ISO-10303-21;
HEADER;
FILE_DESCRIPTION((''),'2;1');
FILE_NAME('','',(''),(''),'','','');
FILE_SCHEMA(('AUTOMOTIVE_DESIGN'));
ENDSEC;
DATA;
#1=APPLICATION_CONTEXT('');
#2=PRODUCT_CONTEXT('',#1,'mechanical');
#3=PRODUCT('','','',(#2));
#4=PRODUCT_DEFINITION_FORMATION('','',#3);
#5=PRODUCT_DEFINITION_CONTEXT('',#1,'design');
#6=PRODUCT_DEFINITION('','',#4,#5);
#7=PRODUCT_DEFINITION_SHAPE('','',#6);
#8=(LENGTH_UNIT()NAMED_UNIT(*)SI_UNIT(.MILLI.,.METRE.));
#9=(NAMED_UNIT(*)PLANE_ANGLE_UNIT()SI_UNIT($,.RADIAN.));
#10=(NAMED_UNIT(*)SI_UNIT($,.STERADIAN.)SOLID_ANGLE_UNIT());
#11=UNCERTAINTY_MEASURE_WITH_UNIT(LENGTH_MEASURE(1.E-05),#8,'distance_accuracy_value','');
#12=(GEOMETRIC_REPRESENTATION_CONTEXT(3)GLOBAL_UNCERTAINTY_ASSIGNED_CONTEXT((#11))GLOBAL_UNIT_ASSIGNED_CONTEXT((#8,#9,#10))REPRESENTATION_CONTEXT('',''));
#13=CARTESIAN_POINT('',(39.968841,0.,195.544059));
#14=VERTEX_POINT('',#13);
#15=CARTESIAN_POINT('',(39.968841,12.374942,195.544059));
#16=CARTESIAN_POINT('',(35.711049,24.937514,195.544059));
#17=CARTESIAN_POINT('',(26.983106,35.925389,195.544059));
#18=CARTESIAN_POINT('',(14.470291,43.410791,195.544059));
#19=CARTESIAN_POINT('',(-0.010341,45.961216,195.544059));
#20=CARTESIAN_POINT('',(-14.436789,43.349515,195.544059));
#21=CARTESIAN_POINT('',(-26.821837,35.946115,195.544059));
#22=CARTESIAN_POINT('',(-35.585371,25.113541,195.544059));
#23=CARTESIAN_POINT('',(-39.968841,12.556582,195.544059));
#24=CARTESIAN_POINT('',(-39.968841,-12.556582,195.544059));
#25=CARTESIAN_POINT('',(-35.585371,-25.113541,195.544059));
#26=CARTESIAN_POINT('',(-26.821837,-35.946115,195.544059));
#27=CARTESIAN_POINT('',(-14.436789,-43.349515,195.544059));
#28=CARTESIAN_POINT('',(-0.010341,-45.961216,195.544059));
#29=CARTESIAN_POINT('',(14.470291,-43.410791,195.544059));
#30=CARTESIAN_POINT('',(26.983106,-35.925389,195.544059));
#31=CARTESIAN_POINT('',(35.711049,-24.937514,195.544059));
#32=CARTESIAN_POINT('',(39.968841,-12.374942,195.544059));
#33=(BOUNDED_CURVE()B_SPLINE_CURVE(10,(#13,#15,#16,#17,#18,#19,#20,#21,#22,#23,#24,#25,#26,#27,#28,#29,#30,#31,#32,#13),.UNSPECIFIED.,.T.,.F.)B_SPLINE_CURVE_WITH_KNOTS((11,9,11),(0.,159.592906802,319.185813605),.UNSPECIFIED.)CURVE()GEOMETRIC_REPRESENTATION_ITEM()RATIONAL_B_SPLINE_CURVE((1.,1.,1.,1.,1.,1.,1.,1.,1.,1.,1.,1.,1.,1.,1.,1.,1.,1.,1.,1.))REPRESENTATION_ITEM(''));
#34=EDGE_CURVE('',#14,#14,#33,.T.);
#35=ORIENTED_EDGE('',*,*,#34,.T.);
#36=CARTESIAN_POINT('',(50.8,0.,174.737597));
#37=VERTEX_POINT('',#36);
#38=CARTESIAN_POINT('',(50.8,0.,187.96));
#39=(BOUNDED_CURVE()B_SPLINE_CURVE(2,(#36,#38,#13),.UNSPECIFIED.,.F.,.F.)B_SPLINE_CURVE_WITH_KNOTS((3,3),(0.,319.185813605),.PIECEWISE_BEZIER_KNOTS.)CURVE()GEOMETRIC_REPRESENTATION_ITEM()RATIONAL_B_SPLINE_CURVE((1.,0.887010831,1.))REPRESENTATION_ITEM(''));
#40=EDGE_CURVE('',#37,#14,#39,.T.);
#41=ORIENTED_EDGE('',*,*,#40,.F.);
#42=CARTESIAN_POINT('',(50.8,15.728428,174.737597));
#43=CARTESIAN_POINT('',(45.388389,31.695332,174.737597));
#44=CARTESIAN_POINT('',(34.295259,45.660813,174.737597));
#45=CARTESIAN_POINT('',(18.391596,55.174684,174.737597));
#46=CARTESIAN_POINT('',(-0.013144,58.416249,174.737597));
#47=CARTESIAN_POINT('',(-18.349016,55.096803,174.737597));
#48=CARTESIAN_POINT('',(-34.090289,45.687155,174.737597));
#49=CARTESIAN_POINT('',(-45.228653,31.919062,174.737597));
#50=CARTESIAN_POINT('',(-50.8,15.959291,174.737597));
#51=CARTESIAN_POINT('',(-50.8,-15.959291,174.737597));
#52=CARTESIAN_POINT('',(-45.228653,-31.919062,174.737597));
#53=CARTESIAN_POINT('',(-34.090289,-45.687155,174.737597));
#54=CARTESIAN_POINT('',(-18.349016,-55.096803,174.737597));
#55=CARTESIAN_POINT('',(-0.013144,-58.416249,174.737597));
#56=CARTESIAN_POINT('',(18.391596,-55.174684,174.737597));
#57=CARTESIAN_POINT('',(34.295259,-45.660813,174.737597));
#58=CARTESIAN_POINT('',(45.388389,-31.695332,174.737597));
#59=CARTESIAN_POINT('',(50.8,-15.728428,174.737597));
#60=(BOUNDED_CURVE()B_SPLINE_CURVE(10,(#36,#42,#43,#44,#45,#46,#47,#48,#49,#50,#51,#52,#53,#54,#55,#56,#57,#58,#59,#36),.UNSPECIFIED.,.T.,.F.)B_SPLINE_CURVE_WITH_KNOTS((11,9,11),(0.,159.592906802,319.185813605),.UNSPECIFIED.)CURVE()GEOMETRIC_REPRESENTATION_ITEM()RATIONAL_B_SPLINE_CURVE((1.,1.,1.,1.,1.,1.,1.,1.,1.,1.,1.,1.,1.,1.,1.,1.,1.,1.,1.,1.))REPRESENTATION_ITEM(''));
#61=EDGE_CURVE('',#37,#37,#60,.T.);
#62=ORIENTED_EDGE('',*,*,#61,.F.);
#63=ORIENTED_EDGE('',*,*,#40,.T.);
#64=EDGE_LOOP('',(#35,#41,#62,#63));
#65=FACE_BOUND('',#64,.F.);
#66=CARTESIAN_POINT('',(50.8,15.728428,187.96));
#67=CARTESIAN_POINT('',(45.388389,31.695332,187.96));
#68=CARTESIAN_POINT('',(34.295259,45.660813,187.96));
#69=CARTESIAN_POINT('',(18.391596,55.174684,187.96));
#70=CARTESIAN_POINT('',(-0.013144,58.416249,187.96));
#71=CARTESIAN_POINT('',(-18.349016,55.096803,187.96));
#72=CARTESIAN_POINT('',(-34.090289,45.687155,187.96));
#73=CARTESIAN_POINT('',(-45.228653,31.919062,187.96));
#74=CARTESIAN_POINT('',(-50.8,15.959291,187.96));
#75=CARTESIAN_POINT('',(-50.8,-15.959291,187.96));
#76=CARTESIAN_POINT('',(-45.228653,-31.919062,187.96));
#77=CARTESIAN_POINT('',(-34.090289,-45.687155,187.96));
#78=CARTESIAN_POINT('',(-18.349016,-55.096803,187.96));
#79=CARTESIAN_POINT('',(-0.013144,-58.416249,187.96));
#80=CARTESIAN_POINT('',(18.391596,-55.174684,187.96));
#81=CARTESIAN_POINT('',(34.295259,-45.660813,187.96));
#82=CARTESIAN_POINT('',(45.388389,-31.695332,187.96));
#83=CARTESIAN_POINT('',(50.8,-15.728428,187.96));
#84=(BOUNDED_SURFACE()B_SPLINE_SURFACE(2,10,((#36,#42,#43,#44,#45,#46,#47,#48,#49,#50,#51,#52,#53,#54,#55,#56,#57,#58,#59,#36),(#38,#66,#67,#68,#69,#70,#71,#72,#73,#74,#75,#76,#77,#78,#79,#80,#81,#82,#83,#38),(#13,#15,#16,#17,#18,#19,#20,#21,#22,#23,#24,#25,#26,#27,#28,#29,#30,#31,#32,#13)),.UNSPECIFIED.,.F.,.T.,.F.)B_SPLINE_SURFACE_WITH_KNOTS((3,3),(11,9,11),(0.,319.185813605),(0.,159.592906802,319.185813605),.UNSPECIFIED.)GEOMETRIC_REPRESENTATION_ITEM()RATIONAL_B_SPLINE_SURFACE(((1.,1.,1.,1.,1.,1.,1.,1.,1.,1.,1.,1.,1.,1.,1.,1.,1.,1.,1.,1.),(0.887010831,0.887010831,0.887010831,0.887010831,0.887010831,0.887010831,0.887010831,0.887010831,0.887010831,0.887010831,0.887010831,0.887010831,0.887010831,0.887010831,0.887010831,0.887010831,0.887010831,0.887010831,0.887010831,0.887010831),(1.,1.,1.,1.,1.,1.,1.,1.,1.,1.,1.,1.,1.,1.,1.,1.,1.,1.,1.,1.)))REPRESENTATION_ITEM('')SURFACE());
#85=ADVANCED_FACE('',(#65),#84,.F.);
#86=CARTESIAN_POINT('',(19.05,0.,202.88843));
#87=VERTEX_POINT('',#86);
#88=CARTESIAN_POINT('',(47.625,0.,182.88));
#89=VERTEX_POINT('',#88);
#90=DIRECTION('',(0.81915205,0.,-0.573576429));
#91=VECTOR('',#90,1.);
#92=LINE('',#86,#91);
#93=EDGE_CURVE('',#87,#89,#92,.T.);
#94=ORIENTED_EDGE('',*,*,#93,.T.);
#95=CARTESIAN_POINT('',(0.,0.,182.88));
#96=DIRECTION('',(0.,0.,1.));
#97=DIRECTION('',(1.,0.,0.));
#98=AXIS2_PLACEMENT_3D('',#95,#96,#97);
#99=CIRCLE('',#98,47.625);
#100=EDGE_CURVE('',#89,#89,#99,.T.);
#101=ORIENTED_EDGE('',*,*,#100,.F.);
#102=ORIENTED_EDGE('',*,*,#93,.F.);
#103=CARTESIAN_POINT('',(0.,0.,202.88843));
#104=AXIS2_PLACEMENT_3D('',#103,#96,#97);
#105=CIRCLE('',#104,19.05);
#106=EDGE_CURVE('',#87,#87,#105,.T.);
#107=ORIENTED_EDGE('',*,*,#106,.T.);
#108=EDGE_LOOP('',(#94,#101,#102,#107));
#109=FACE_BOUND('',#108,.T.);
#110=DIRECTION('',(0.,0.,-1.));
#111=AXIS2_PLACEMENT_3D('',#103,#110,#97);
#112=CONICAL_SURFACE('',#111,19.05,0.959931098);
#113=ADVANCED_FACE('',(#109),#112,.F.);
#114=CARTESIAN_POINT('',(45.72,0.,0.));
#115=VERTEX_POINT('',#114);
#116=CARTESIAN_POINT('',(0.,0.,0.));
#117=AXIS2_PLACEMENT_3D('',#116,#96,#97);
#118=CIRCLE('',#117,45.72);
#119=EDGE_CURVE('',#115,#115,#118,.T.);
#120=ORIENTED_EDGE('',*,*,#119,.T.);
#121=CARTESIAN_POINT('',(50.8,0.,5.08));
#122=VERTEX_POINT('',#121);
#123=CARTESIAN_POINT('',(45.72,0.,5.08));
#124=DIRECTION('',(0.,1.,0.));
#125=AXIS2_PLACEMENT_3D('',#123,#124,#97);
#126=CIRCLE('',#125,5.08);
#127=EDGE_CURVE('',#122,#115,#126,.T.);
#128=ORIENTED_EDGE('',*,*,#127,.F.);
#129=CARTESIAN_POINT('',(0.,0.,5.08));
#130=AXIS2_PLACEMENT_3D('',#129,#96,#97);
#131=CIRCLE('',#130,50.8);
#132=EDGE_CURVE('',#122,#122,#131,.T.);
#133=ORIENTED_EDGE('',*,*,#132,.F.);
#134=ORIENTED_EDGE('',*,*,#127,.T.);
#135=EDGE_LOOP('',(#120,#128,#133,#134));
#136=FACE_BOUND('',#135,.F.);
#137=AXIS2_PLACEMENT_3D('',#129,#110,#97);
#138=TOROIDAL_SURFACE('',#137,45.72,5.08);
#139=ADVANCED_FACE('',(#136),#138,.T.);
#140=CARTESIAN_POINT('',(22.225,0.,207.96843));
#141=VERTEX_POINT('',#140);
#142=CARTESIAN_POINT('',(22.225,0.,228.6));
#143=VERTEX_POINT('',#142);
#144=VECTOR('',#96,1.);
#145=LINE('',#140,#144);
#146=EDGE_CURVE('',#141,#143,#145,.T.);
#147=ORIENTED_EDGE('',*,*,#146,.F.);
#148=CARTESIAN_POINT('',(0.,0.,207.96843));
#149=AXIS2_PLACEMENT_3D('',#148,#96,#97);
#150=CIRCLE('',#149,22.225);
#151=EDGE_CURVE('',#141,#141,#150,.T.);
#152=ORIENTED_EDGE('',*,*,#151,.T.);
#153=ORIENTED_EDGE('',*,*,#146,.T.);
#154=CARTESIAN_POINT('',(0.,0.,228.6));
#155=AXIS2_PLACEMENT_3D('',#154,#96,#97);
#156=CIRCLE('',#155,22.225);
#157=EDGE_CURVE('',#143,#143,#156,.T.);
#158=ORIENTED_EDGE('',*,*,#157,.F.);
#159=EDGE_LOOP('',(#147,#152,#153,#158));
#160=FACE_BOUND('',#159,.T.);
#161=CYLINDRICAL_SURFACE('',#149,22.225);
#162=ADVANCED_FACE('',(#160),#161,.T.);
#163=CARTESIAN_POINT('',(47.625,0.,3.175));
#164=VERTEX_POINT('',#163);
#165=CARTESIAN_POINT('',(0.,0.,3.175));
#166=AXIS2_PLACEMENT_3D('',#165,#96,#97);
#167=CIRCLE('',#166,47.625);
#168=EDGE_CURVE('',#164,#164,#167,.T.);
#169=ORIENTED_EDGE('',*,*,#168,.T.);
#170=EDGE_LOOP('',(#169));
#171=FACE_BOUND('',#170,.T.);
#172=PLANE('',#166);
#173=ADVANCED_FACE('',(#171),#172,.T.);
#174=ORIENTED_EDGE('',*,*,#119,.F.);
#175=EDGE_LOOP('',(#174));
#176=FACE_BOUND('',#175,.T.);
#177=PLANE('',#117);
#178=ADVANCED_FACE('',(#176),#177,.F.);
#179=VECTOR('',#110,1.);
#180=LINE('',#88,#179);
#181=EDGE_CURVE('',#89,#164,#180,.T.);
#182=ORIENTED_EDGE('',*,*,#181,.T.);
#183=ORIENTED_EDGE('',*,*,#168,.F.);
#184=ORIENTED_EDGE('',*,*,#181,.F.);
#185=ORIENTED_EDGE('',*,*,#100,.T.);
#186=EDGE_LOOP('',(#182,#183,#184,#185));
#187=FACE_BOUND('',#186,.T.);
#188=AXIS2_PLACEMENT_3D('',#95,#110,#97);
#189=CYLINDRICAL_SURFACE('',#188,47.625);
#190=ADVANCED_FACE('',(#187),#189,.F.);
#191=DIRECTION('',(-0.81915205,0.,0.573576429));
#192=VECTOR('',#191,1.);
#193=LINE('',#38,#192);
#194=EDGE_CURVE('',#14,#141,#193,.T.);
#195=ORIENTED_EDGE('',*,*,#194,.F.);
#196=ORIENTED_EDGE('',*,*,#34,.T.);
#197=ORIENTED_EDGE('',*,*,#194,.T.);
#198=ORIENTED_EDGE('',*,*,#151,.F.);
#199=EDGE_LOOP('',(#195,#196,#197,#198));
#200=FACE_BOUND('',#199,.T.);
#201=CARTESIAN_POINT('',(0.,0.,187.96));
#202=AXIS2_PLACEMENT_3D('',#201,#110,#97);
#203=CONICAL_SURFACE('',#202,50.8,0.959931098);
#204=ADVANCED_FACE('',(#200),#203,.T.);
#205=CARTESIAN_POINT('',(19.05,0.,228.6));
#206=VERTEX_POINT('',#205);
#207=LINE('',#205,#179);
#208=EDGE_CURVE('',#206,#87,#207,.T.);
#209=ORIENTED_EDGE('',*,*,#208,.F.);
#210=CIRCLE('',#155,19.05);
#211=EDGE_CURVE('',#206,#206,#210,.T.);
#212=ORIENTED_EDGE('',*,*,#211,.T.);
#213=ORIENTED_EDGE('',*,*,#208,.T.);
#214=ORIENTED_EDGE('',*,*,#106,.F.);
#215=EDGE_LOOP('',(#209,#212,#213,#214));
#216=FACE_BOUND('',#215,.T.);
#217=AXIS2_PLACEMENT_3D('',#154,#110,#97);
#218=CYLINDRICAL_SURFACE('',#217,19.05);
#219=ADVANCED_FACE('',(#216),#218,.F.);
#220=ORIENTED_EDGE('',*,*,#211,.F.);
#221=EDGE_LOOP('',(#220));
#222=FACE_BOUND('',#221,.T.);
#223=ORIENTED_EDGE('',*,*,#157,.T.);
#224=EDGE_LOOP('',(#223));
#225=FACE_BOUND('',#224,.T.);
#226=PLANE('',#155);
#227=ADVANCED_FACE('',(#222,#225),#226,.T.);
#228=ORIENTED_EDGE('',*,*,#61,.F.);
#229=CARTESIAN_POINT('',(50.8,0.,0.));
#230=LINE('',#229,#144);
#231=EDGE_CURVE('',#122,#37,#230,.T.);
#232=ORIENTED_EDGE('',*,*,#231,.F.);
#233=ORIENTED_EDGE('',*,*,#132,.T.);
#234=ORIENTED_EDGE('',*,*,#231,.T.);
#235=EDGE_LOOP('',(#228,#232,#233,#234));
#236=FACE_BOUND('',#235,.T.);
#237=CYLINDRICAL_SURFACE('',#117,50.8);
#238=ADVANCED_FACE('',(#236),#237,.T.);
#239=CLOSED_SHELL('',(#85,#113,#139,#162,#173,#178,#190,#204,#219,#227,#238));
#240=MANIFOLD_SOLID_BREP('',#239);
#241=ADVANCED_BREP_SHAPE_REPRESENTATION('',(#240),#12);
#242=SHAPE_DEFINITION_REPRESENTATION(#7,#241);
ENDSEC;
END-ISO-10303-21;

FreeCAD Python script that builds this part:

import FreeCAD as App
import Part
import Sketcher

V = App.Vector
Q = App.Units.Quantity


def edges_at(feature, points):
    """Names of the edges that pass closest to the given points."""
    edges = feature.Shape.Edges
    near = lambda p: min(range(len(edges)), key=lambda i: edges[i].distToShape(Part.Vertex(*p))[0])
    return sorted({f"Edge{near(p) + 1}" for p in points})

doc = App.newDocument("Part")
body = doc.addObject("PartDesign::Body", "Body")

# Sketch on XZ plane
sketch1 = doc.addObject("Sketcher::SketchObject", "Sketch")
body.addObject(sketch1)
sketch1.AttachmentSupport = (doc.XZ_Plane, [""])
sketch1.MapMode = "FlatFace"
sketch1.addGeometry([
    Part.LineSegment(V(22.2, 228.6, 0), V(19.1, 228.6, 0)),  # 0
    Part.LineSegment(V(19.1, 228.6, 0), V(19.1, 202.9, 0)),  # 1
    Part.LineSegment(V(19.1, 202.9, 0), V(47.6, 182.9, 0)),  # 2
    Part.LineSegment(V(47.6, 182.9, 0), V(47.6, 3.2, 0)),  # 3
    Part.LineSegment(V(47.6, 3.2, 0), V(0, 3.2, 0)),  # 4
    Part.LineSegment(V(0, 3.2, 0), V(0, 0, 0)),  # 5
    Part.LineSegment(V(0, 0, 0), V(50.8, 0, 0)),  # 6
    Part.LineSegment(V(50.8, 0, 0), V(50.8, 188, 0)),  # 7
    Part.LineSegment(V(50.8, 188, 0), V(22.2, 208, 0)),  # 8
    Part.LineSegment(V(22.2, 208, 0), V(22.2, 228.6, 0)),  # 9
], False)
sketch1.addConstraint([
    Sketcher.Constraint("Coincident", 0, 2, 1, 1),
    Sketcher.Constraint("Coincident", 1, 2, 2, 1),
    Sketcher.Constraint("Coincident", 2, 2, 3, 1),
    Sketcher.Constraint("Coincident", 3, 2, 4, 1),
    Sketcher.Constraint("Coincident", 4, 2, 5, 1),
    Sketcher.Constraint("Coincident", 5, 2, 6, 1),
    Sketcher.Constraint("Coincident", 6, 2, 7, 1),
    Sketcher.Constraint("Coincident", 7, 2, 8, 1),
    Sketcher.Constraint("Coincident", 8, 2, 9, 1),
    Sketcher.Constraint("Coincident", 9, 2, 0, 1),
    Sketcher.Constraint("Horizontal", 0),
    Sketcher.Constraint("Vertical", 1),
    Sketcher.Constraint("Vertical", 3),
    Sketcher.Constraint("Horizontal", 4),
    Sketcher.Constraint("Vertical", 5),
    Sketcher.Constraint("Horizontal", 6),
    Sketcher.Constraint("Vertical", 7),
    Sketcher.Constraint("Vertical", 9),
    Sketcher.Constraint("Coincident", 5, 2, -1, 1),
    Sketcher.Constraint("Parallel", 2, 8),
    Sketcher.Constraint("Equal", 0, 5),
    Sketcher.Constraint("Equal", 2, 8),
    Sketcher.Constraint("DistanceX", 6, 1, 6, 2, Q("2 in")),
    Sketcher.Constraint("DistanceY", 7, 1, 7, 2, Q("7.4 in")),
    Sketcher.Constraint("DistanceY", -1, 1, 0, 2, Q("9 in")),
    Sketcher.Constraint("Angle", 2, Q("-34.999999 deg")),
    Sketcher.Constraint("DistanceX", 8, 2, 2, 2, Q("1 in")),
    Sketcher.Constraint("DistanceY", -1, 1, 2, 2, Q("7.2 in")),
    Sketcher.Constraint("DistanceX", 0, 2, 0, 1, Q("0.125 in")),
])
revolution = doc.addObject("PartDesign::Revolution", "Revolution")
body.addObject(revolution)
revolution.Profile = sketch1
revolution.ReferenceAxis = (sketch1, ["V_Axis"])
revolution.Angle = 360
doc.recompute()

fillet = doc.addObject("PartDesign::Fillet", "Fillet")
body.addObject(fillet)
fillet.Base = (revolution, edges_at(revolution, [(-50.8, 0, 187.96)]))
fillet.Radius = Q("1 in")
doc.recompute()

fillet2 = doc.addObject("PartDesign::Fillet", "Fillet001")
body.addObject(fillet2)
fillet2.Base = (fillet, edges_at(fillet, [(-50.8, 0, 0)]))
fillet2.Radius = Q("0.2 in")

doc.recompute()
